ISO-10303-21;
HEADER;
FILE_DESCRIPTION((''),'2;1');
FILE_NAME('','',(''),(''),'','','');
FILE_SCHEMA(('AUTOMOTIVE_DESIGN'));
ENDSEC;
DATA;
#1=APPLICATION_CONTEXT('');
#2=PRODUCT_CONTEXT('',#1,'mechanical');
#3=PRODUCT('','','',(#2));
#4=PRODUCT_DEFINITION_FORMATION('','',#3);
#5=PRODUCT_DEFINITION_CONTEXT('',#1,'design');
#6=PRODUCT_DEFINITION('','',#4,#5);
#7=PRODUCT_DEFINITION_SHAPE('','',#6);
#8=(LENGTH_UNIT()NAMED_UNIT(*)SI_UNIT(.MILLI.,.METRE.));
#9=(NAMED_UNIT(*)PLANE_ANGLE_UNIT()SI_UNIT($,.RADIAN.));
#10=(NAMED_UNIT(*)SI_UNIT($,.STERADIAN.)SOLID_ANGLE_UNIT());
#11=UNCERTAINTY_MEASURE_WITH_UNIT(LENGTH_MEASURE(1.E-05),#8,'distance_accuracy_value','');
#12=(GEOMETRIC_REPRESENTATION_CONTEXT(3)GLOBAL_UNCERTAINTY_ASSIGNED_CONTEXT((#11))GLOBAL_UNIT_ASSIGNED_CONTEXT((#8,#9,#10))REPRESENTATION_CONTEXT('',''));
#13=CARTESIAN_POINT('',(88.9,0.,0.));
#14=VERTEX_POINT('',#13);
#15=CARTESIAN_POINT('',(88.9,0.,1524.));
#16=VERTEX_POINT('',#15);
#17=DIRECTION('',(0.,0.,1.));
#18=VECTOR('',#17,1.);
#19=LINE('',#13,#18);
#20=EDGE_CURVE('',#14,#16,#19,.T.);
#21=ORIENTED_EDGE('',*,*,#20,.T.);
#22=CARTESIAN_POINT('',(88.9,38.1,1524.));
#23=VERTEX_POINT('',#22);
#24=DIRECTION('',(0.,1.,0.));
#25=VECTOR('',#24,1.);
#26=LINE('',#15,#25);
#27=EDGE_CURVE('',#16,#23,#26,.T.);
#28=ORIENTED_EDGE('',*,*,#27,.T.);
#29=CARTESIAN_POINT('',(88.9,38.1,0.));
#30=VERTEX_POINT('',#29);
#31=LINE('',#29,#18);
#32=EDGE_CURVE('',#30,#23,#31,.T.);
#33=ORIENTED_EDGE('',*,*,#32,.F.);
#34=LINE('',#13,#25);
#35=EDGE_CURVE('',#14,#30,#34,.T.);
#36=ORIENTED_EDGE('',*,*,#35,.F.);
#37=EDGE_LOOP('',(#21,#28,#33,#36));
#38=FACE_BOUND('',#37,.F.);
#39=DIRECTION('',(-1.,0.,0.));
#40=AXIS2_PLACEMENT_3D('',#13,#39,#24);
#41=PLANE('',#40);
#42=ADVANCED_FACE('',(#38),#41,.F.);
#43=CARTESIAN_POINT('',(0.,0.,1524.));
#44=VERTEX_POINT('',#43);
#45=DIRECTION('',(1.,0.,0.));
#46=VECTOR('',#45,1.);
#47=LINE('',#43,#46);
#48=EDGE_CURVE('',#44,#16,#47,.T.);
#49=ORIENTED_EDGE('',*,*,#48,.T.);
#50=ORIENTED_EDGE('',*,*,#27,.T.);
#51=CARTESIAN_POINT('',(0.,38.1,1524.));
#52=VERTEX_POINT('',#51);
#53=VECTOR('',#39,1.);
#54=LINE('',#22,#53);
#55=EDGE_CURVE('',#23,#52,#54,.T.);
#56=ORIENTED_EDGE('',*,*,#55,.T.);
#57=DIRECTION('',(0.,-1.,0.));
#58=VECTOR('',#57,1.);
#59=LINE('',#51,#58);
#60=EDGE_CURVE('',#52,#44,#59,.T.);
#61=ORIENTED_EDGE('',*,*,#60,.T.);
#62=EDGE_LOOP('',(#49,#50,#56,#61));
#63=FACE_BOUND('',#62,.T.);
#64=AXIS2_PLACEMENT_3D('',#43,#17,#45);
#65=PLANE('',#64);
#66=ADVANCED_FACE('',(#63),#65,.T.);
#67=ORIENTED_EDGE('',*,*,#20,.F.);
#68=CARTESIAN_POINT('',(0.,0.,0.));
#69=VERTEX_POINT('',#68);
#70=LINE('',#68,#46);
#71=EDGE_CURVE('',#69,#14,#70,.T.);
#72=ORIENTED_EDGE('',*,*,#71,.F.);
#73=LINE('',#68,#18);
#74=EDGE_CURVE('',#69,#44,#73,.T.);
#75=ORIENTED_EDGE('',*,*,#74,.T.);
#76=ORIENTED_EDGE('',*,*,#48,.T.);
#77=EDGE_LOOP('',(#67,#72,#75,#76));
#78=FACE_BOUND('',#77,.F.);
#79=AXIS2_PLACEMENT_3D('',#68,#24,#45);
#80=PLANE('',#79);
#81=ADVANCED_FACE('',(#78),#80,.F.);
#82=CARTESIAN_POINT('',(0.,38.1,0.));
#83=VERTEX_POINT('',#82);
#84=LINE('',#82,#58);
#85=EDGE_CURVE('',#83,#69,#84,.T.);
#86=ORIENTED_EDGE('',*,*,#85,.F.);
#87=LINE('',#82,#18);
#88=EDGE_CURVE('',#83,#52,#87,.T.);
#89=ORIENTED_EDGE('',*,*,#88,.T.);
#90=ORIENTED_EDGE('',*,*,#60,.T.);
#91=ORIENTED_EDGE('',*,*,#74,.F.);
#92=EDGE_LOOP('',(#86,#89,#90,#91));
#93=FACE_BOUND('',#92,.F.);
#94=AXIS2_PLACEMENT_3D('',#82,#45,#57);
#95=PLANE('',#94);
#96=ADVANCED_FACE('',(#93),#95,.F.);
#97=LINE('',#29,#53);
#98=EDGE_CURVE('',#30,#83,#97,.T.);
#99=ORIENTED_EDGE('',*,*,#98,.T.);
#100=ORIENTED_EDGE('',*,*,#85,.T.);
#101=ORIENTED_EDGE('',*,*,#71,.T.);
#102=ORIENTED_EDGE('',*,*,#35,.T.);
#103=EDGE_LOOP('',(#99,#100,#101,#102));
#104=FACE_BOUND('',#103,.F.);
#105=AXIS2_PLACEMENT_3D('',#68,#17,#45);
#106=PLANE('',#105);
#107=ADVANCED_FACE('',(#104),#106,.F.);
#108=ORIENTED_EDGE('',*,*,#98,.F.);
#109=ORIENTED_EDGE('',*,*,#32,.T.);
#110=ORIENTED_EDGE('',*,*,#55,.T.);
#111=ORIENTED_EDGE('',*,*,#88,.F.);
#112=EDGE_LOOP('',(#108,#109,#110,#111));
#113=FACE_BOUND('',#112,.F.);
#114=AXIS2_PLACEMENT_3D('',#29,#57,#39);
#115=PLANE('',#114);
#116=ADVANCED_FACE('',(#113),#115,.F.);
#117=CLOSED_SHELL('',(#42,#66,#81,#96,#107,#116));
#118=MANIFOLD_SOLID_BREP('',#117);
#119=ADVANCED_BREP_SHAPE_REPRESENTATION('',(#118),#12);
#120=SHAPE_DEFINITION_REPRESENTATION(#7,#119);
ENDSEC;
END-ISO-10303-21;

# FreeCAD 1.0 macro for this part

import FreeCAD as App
import Part
import Sketcher
from FreeCAD import Vector
Q = App.Units.Quantity


def add_polygon(sketch, points):
    """Adds a closed chain of lines whose ends are joined by coincident constraints."""
    first, n = sketch.GeometryCount, len(points)
    for a, b in zip(points, points[1:] + points[:1]):
        sketch.addGeometry(Part.LineSegment(App.Vector(*a, 0), App.Vector(*b, 0)), False)
    for i in range(n):
        sketch.addConstraint(Sketcher.Constraint("Coincident", first + i, 2, first + (i + 1) % n, 1))

doc = App.newDocument("Part")
body = doc.addObject("PartDesign::Body", "Body")

# Sketch on XY plane
sketch1 = body.newObject("Sketcher::SketchObject", "Sketch")
sketch1.AttachmentSupport = (doc.getObject("XY_Plane"), [""])
sketch1.MapMode = "FlatFace"
add_polygon(sketch1, [(0, 38), (0, 0), (89, 0), (89, 38)])  # lines 0-3
sketch1.addConstraint(Sketcher.Constraint("Vertical", 0))
sketch1.addConstraint(Sketcher.Constraint("Horizontal", 1))
sketch1.addConstraint(Sketcher.Constraint("Vertical", 2))
sketch1.addConstraint(Sketcher.Constraint("Horizontal", 3))
sketch1.addConstraint(Sketcher.Constraint("Coincident", 0, 2, -1, 1))
sketch1.addConstraint(Sketcher.Constraint("DistanceX", 1, 1, 1, 2, Q("3.5 in")))
sketch1.addConstraint(Sketcher.Constraint("DistanceY", 0, 2, 0, 1, Q("1.5 in")))
pad1 = body.newObject("PartDesign::Pad", "Pad")
pad1.Profile = sketch1
pad1.Length = Q("60 in")

doc.recompute()
